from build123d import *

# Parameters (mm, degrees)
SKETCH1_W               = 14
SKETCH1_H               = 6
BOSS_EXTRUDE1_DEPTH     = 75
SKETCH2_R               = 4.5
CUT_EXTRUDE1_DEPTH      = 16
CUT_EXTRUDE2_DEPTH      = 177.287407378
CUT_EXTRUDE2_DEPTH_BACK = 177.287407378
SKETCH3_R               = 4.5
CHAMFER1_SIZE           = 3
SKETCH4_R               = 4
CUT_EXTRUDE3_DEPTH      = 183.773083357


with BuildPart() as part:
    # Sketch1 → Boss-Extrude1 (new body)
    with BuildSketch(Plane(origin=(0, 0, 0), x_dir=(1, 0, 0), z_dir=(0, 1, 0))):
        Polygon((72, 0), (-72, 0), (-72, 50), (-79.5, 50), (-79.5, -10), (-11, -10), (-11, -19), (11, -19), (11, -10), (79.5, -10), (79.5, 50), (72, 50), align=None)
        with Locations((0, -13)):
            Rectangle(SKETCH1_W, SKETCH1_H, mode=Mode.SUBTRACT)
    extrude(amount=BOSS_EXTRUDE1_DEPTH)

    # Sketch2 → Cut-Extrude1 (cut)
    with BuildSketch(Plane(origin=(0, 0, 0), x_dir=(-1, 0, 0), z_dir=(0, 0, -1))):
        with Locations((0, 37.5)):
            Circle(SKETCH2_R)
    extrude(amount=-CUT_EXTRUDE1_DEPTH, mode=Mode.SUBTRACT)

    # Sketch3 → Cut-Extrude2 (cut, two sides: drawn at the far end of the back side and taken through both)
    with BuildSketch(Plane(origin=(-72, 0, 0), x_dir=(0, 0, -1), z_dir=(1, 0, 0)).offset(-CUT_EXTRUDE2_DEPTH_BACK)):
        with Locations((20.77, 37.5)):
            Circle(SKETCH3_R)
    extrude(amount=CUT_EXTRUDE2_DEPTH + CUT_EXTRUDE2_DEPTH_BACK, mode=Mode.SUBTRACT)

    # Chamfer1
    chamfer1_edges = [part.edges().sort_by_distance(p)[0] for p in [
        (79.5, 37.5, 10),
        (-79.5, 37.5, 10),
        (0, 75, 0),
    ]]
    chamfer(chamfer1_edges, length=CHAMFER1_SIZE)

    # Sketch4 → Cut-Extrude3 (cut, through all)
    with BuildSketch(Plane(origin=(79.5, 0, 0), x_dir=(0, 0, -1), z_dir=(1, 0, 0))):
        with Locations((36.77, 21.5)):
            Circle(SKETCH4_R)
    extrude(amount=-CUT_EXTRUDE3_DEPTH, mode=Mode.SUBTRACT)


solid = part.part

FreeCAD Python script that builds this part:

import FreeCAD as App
import Part
import Sketcher

V = App.Vector


def edges_at(feature, points):
    """Names of the edges that pass closest to the given points."""
    edges = feature.Shape.Edges
    near = lambda p: min(range(len(edges)), key=lambda i: edges[i].distToShape(Part.Vertex(*p))[0])
    return sorted({f"Edge{near(p) + 1}" for p in points})

doc = App.newDocument("Part")
body = doc.addObject("PartDesign::Body", "Body")

sketch1 = body.newObject("Sketcher::SketchObject", "Sketch")
sketch1.AttachmentSupport = (doc.getObject("XZ_Plane"), [""])
sketch1.MapMode = "FlatFace"
sketch1.addGeometry(Part.LineSegment(V(72, 0, 0), V(-72, 0, 0)), False)
sketch1.addGeometry(Part.LineSegment(V(-72, 0, 0), V(-72, -50, 0)), False)
sketch1.addGeometry(Part.LineSegment(V(-72, -50, 0), V(-80, -50, 0)), False)
sketch1.addGeometry(Part.LineSegment(V(-80, -50, 0), V(-80, 10, 0)), False)
sketch1.addGeometry(Part.LineSegment(V(-80, 10, 0), V(-11, 10, 0)), False)
sketch1.addGeometry(Part.LineSegment(V(-11, 10, 0), V(-11, 19, 0)), False)
sketch1.addGeometry(Part.LineSegment(V(-11, 19, 0), V(11, 19, 0)), False)
sketch1.addGeometry(Part.LineSegment(V(11, 19, 0), V(11, 10, 0)), False)
sketch1.addGeometry(Part.LineSegment(V(11, 10, 0), V(80, 10, 0)), False)
sketch1.addGeometry(Part.LineSegment(V(80, 10, 0), V(80, -50, 0)), False)
sketch1.addGeometry(Part.LineSegment(V(80, -50, 0), V(72, -50, 0)), False)
sketch1.addGeometry(Part.LineSegment(V(72, -50, 0), V(72, 0, 0)), False)
sketch1.addGeometry(Part.LineSegment(V(7, 16, 0), V(-7, 16, 0)), False)
sketch1.addGeometry(Part.LineSegment(V(-7, 16, 0), V(-7, 10, 0)), False)
sketch1.addGeometry(Part.LineSegment(V(-7, 10, 0), V(7, 10, 0)), False)
sketch1.addGeometry(Part.LineSegment(V(7, 10, 0), V(7, 16, 0)), False)
sketch1.addConstraint(Sketcher.Constraint("Coincident", 0, 2, 1, 1))
sketch1.addConstraint(Sketcher.Constraint("Coincident", 1, 2, 2, 1))
sketch1.addConstraint(Sketcher.Constraint("Coincident", 2, 2, 3, 1))
sketch1.addConstraint(Sketcher.Constraint("Coincident", 3, 2, 4, 1))
sketch1.addConstraint(Sketcher.Constraint("Coincident", 4, 2, 5, 1))
sketch1.addConstraint(Sketcher.Constraint("Coincident", 5, 2, 6, 1))
sketch1.addConstraint(Sketcher.Constraint("Coincident", 6, 2, 7, 1))
sketch1.addConstraint(Sketcher.Constraint("Coincident", 7, 2, 8, 1))
sketch1.addConstraint(Sketcher.Constraint("Coincident", 8, 2, 9, 1))
sketch1.addConstraint(Sketcher.Constraint("Coincident", 9, 2, 10, 1))
sketch1.addConstraint(Sketcher.Constraint("Coincident", 10, 2, 11, 1))
sketch1.addConstraint(Sketcher.Constraint("Coincident", 11, 2, 0, 1))
sketch1.addConstraint(Sketcher.Constraint("Coincident", 12, 2, 13, 1))
sketch1.addConstraint(Sketcher.Constraint("Coincident", 13, 2, 14, 1))
sketch1.addConstraint(Sketcher.Constraint("Coincident", 14, 2, 15, 1))
sketch1.addConstraint(Sketcher.Constraint("Coincident", 15, 2, 12, 1))
sketch1.addConstraint(Sketcher.Constraint("Horizontal", 0))
sketch1.addConstraint(Sketcher.Constraint("Vertical", 1))
sketch1.addConstraint(Sketcher.Constraint("Horizontal", 2))
sketch1.addConstraint(Sketcher.Constraint("Vertical", 3))
sketch1.addConstraint(Sketcher.Constraint("Horizontal", 4))
sketch1.addConstraint(Sketcher.Constraint("Vertical", 5))
sketch1.addConstraint(Sketcher.Constraint("Horizontal", 6))
sketch1.addConstraint(Sketcher.Constraint("Vertical", 7))
sketch1.addConstraint(Sketcher.Constraint("Horizontal", 8))
sketch1.addConstraint(Sketcher.Constraint("Vertical", 9))
sketch1.addConstraint(Sketcher.Constraint("Horizontal", 10))
sketch1.addConstraint(Sketcher.Constraint("Vertical", 11))
sketch1.addConstraint(Sketcher.Constraint("Horizontal", 12))
sketch1.addConstraint(Sketcher.Constraint("Vertical", 13))
sketch1.addConstraint(Sketcher.Constraint("Horizontal", 14))
sketch1.addConstraint(Sketcher.Constraint("Vertical", 15))
sketch1.addConstraint(Sketcher.Constraint("Symmetric", 0, 2, 11, 2, -1, 1))
sketch1.addConstraint(Sketcher.Constraint("Symmetric", 4, 2, 7, 2, -2))
sketch1.addConstraint(Sketcher.Constraint("Symmetric", 2, 2, 9, 2, -2))
sketch1.addConstraint(Sketcher.Constraint("Horizontal", 8, 2, 13, 2))
sketch1.addConstraint(Sketcher.Constraint("DistanceX", 0, 2, 0, 1, 144.0))
sketch1.addConstraint(Sketcher.Constraint("DistanceX", 6, 1, 6, 2, 22.0))
sketch1.addConstraint(Sketcher.Constraint("DistanceX", 12, 2, 12, 1, 14.0))
sketch1.addConstraint(Sketcher.Constraint("DistanceY", 1, 2, 1, 1, 50.0))
sketch1.addConstraint(Sketcher.Constraint("DistanceY", 3, 1, 3, 2, 60.0))
sketch1.addConstraint(Sketcher.Constraint("DistanceY", 5, 1, 5, 2, 9.0))
sketch1.addConstraint(Sketcher.Constraint("DistanceY", 13, 2, 13, 1, 6.0))
sketch1.addConstraint(Sketcher.Constraint("DistanceX", 2, 2, 2, 1, 7.5))
sketch1.addConstraint(Sketcher.Constraint("DistanceX", 12, 2, -1, 1, 7.0))
pad1 = body.newObject("PartDesign::Pad", "Pad")
pad1.Profile = sketch1
pad1.Length = 75
pad1.Reversed = True

sketch2 = body.newObject("Sketcher::SketchObject", "Sketch001")
sketch2.AttachmentSupport = (doc.getObject("XY_Plane"), [""])
sketch2.MapMode = "FlatFace"
sketch2.addGeometry(Part.Circle(V(0, 37.5, 0), V(0, 0, 1), 4.5), False)
sketch2.addConstraint(Sketcher.Constraint("PointOnObject", 0, 3, -2))
sketch2.addConstraint(Sketcher.Constraint("Diameter", 0, 9.0))
sketch2.addConstraint(Sketcher.Constraint("DistanceY", -1, 1, 0, 3, 37.5))
pocket1 = body.newObject("PartDesign::Pocket", "Pocket")
pocket1.Profile = sketch2
pocket1.Length = 16
pocket1.Reversed = True

sketch3 = body.newObject("Sketcher::SketchObject", "Sketch002")
sketch3.AttachmentSupport = (doc.getObject("YZ_Plane"), [""])
sketch3.MapMode = "FlatFace"
sketch3.AttachmentOffset = App.Placement(V(0, 0, -72), App.Rotation())
sketch3.addGeometry(Part.Circle(V(37.5, -20.8, 0), V(0, 0, 1), 4.5), False)
sketch3.addConstraint(Sketcher.Constraint("Diameter", 0, 9.0))
sketch3.addConstraint(Sketcher.Constraint("DistanceX", -1, 1, 0, 3, 37.5))
sketch3.addConstraint(Sketcher.Constraint("DistanceY", 0, 3, -1, 1, 20.77))
pocket2 = body.newObject("PartDesign::Pocket", "Pocket001")
pocket2.Profile = sketch3
pocket2.Type = "ThroughAll"
pocket2.Midplane = True
doc.recompute()

chamfer = body.newObject("PartDesign::Chamfer", "Chamfer")
chamfer.Base = (pocket2, edges_at(pocket2, [(79.5, 37.5, 10), (-79.5, 37.5, 10), (0, 75, 0)]))
chamfer.Size = 3

sketch4 = body.newObject("Sketcher::SketchObject", "Sketch003")
sketch4.AttachmentSupport = (doc.getObject("YZ_Plane"), [""])
sketch4.MapMode = "FlatFace"
sketch4.AttachmentOffset = App.Placement(V(0, 0, 79.5), App.Rotation())
sketch4.addGeometry(Part.Circle(V(21.5, -36.8, 0), V(0, 0, 1), 4), False)
sketch4.addConstraint(Sketcher.Constraint("Diameter", 0, 8.0))
sketch4.addConstraint(Sketcher.Constraint("DistanceX", -1, 1, 0, 3, 21.5))
sketch4.addConstraint(Sketcher.Constraint("DistanceY", 0, 3, -1, 1, 36.77))
pocket3 = body.newObject("PartDesign::Pocket", "Pocket002")
pocket3.Profile = sketch4
pocket3.Type = "ThroughAll"

doc.recompute()
